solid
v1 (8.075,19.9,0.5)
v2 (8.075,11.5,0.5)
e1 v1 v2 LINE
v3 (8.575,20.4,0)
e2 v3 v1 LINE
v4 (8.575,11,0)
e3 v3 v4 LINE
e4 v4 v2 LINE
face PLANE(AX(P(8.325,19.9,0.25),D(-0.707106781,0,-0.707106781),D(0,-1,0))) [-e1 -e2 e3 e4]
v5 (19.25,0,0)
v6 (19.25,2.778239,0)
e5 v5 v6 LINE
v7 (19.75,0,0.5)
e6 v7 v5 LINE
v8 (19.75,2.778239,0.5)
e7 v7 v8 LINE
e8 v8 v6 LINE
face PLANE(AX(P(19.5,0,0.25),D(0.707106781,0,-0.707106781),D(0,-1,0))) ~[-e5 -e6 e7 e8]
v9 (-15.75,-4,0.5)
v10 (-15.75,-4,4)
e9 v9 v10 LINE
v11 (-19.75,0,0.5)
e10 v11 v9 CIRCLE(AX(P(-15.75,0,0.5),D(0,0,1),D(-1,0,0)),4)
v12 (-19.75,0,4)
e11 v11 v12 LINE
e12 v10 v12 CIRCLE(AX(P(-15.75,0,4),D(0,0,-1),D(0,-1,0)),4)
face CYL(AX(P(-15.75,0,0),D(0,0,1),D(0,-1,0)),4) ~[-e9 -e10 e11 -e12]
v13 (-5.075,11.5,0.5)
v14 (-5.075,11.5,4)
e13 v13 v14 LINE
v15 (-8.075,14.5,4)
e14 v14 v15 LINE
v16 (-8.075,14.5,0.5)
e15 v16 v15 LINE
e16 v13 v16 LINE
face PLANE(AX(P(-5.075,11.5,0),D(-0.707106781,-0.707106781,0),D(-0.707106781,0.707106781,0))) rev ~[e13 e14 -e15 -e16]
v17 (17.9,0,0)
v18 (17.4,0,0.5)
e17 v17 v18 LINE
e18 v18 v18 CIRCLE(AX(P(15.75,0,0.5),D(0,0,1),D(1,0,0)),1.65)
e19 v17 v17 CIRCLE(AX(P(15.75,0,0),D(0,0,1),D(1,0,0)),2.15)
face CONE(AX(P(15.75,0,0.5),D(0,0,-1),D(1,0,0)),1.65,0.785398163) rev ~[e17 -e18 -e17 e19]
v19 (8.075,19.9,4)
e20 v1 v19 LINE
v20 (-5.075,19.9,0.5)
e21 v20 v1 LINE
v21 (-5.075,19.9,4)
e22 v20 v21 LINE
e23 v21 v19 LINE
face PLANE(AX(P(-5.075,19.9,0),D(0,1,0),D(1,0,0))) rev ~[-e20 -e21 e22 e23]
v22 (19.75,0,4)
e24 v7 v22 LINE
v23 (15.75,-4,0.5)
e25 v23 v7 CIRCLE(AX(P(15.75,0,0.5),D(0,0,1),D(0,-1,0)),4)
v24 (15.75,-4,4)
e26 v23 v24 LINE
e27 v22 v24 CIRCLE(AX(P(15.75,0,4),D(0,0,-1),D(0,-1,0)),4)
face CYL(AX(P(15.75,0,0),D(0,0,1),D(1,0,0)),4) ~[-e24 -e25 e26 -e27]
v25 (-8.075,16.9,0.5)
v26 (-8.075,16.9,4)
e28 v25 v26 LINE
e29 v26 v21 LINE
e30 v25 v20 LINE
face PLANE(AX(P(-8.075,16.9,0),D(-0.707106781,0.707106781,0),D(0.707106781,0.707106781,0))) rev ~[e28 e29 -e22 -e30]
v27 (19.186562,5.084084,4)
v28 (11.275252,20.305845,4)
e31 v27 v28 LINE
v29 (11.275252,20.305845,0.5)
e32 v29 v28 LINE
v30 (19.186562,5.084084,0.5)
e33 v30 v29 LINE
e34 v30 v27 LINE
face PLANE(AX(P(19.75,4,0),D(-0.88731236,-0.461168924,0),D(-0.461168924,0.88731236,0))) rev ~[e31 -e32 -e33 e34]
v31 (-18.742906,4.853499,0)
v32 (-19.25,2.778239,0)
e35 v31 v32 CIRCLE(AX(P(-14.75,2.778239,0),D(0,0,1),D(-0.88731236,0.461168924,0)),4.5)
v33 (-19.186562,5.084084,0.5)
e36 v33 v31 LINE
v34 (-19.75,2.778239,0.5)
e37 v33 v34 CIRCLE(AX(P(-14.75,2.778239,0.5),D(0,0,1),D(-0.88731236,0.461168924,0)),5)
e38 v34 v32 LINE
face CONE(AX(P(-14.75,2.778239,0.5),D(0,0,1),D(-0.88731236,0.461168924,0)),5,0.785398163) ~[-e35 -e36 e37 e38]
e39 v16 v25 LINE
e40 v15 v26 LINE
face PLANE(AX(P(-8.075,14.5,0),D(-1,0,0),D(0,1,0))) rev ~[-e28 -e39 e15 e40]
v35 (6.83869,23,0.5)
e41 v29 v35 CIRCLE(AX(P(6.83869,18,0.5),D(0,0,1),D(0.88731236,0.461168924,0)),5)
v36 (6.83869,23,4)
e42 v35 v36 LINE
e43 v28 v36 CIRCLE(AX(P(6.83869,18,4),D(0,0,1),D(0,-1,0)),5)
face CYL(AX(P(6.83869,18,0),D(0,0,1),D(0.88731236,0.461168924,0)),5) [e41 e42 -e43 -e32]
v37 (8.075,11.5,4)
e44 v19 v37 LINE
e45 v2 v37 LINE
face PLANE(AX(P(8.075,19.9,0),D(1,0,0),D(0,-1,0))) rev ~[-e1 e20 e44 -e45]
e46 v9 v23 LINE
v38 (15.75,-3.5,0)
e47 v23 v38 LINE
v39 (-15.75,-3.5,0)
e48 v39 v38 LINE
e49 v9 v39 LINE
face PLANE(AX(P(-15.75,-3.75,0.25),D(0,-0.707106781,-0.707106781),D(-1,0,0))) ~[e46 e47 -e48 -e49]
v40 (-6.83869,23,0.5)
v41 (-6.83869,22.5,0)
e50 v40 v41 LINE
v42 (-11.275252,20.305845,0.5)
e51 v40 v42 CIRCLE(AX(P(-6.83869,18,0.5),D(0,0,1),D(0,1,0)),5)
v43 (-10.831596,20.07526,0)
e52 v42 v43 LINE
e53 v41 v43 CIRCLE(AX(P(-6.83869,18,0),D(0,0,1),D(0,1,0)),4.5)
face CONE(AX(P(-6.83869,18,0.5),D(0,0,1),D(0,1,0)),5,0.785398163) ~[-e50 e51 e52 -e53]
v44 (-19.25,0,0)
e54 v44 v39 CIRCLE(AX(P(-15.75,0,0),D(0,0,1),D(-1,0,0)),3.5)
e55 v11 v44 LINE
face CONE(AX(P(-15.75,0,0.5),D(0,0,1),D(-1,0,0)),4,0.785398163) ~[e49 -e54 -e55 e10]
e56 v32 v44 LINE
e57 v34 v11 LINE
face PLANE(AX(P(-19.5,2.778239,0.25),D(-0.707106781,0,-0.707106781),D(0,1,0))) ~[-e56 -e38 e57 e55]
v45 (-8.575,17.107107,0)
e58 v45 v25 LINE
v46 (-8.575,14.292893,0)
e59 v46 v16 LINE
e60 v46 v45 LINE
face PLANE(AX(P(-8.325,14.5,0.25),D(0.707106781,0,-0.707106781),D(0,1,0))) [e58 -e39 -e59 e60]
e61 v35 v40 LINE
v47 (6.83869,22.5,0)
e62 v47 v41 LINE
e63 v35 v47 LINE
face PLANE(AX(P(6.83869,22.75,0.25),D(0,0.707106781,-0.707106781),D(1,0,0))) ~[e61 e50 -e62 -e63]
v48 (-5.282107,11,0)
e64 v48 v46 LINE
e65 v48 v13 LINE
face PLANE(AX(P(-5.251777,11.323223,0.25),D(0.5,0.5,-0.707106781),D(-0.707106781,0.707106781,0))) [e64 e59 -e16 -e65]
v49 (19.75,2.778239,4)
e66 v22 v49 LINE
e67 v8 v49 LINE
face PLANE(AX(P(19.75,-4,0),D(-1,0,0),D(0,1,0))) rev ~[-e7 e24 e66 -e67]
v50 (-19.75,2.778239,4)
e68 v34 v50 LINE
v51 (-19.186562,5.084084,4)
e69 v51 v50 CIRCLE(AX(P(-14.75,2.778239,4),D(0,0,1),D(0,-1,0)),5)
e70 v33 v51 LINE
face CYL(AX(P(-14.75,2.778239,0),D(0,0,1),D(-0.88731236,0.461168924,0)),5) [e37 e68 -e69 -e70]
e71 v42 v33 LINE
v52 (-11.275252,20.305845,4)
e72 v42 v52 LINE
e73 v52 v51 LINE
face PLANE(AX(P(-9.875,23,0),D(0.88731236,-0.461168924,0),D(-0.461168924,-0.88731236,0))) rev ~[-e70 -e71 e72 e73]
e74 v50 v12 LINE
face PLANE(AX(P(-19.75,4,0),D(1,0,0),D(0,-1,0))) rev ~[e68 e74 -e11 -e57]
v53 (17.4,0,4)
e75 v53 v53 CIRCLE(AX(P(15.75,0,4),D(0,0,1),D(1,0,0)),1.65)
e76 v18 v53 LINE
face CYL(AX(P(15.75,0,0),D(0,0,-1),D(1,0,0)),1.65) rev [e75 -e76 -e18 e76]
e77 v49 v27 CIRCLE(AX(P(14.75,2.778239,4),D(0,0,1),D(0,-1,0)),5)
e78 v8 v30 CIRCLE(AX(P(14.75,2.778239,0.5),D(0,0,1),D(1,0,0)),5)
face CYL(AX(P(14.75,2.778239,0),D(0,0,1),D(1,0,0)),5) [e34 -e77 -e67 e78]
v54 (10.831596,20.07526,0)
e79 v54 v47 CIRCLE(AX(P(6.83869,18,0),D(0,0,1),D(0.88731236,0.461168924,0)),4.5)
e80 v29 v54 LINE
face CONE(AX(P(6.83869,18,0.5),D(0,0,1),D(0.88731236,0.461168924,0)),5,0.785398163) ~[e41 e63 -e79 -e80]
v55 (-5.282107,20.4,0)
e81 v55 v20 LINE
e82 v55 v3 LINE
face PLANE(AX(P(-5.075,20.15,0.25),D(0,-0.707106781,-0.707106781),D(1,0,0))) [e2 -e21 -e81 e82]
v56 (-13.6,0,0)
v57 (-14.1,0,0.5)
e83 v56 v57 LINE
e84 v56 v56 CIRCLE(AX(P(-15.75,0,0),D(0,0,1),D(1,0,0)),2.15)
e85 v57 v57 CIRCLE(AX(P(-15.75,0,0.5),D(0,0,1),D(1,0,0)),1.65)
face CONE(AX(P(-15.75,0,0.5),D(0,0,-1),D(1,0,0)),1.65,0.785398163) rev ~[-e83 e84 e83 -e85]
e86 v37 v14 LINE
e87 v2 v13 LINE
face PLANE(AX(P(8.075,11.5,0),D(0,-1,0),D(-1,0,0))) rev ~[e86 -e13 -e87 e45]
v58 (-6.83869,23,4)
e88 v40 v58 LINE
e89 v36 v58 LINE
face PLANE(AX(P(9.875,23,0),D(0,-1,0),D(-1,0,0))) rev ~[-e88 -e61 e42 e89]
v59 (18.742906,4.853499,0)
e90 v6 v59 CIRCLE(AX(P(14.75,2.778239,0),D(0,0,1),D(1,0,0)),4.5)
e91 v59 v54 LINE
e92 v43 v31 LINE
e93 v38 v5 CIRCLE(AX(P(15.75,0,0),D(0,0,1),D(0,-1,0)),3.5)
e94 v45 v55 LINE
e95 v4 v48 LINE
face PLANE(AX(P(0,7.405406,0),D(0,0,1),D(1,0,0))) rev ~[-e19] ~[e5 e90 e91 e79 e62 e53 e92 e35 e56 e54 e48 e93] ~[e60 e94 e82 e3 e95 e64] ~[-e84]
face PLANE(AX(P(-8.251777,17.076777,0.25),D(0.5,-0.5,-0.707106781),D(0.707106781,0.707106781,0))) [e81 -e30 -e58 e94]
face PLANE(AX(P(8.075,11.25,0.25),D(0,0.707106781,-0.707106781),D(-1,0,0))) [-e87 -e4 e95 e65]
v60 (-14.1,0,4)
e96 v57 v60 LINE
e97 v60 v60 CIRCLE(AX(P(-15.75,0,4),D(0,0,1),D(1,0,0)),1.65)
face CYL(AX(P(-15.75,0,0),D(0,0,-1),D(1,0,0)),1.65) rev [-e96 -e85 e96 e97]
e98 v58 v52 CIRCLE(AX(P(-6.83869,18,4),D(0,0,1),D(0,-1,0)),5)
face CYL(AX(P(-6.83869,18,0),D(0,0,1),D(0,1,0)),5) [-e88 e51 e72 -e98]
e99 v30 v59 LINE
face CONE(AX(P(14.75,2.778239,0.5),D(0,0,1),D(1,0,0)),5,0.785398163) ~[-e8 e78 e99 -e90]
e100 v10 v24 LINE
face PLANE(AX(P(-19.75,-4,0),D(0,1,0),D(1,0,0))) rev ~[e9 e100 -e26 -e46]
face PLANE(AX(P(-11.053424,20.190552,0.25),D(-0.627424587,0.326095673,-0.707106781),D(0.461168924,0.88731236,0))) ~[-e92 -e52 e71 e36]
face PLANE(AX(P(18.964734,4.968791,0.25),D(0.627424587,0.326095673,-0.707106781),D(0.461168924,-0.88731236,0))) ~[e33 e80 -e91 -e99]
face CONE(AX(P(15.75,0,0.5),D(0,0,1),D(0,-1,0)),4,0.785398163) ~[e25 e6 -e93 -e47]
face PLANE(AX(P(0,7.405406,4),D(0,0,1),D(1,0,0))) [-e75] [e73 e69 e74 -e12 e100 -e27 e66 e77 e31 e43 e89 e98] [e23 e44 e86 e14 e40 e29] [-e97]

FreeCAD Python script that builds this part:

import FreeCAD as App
import Part
import Sketcher
from FreeCAD import Vector


def edges_at(feature, points):
    """Names of the edges that pass closest to the given points."""
    edges = feature.Shape.Edges
    near = lambda p: min(range(len(edges)), key=lambda i: edges[i].distToShape(Part.Vertex(*p))[0])
    return sorted({f"Edge{near(p) + 1}" for p in points})


def add_polygon(sketch, points):
    """Adds a closed chain of lines whose ends are joined by coincident constraints."""
    first, n = sketch.GeometryCount, len(points)
    for a, b in zip(points, points[1:] + points[:1]):
        sketch.addGeometry(Part.LineSegment(App.Vector(*a, 0), App.Vector(*b, 0)), False)
    for i in range(n):
        sketch.addConstraint(Sketcher.Constraint("Coincident", first + i, 2, first + (i + 1) % n, 1))

doc = App.newDocument("Part")
body = doc.addObject("PartDesign::Body", "Body")

# Sketch on XY plane
sketch1 = body.newObject("Sketcher::SketchObject", "Sketch")
sketch1.AttachmentSupport = (doc.getObject("XY_Plane"), [""])
sketch1.MapMode = "FlatFace"
add_polygon(sketch1, [(-19.75, -4), (19.75, -4), (19.75, 4), (9.875, 23), (-9.875, 23), (-19.75, 4)])  # lines 0-5
sketch1.addGeometry(Part.Circle(Vector(-15.75, 0, 0), Vector(0, 0, 1), 1.65), False)  # 6
sketch1.addGeometry(Part.Circle(Vector(15.75, 0, 0), Vector(0, 0, 1), 1.65), False)  # 7
add_polygon(sketch1, [(-5.075, 11.5), (-8.075, 14.5), (-8.075, 16.9), (-5.075, 19.9), (8.075, 19.9), (8.075, 11.5)])  # lines 8-13
sketch1.addConstraint(Sketcher.Constraint("Horizontal", 0))
sketch1.addConstraint(Sketcher.Constraint("Vertical", 1))
sketch1.addConstraint(Sketcher.Constraint("Horizontal", 3))
sketch1.addConstraint(Sketcher.Constraint("Vertical", 5))
sketch1.addConstraint(Sketcher.Constraint("Vertical", 9))
sketch1.addConstraint(Sketcher.Constraint("Horizontal", 11))
sketch1.addConstraint(Sketcher.Constraint("Vertical", 12))
sketch1.addConstraint(Sketcher.Constraint("Horizontal", 13))
sketch1.addConstraint(Sketcher.Constraint("Equal", 6, 7))
sketch1.addConstraint(Sketcher.Constraint("Symmetric", 6, 3, 7, 3, -1, 1))
sketch1.addConstraint(Sketcher.Constraint("Symmetric", 0, 2, 4, 2, -1, 1))
sketch1.addConstraint(Sketcher.Constraint("PointOnObject", 6, 3, -1))
sketch1.addConstraint(Sketcher.Constraint("Perpendicular", 8, 10))
sketch1.addConstraint(Sketcher.Constraint("Horizontal", 1, 2, 4, 2))
sketch1.addConstraint(Sketcher.Constraint("Vertical", 10, 2, 13, 2))
sketch1.addConstraint(Sketcher.Constraint("Equal", 2, 4))
sketch1.addConstraint(Sketcher.Constraint("Equal", 8, 10))
sketch1.addConstraint(Sketcher.Constraint("Diameter", 6, 3.3))
sketch1.addConstraint(Sketcher.Constraint("DistanceY", 1, 1, 1, 2, 8.0))
sketch1.addConstraint(Sketcher.Constraint("DistanceX", 0, 1, 0, 2, 39.5))
sketch1.addConstraint(Sketcher.Constraint("DistanceY", 9, 1, 9, 2, 2.4))
sketch1.addConstraint(Sketcher.Constraint("DistanceY", 12, 2, 12, 1, 8.4))
sketch1.addConstraint(Sketcher.Constraint("DistanceY", -1, 1, 2, 2, 23.0))
sketch1.addConstraint(Sketcher.Constraint("DistanceX", 7, 3, 0, 2, 4.0))
sketch1.addConstraint(Sketcher.Constraint("DistanceX", 3, 2, 3, 1, 19.75))
sketch1.addConstraint(Sketcher.Constraint("DistanceX", 11, 1, 11, 2, 13.15))
sketch1.addConstraint(Sketcher.Constraint("DistanceY", -1, 1, 8, 2, 14.5))
sketch1.addConstraint(Sketcher.Constraint("DistanceX", 3, 2, 8, 2, 1.8))
pad1 = body.newObject("PartDesign::Pad", "Pad")
pad1.Profile = sketch1
pad1.Length = 4
doc.recompute()

fillet = body.newObject("PartDesign::Fillet", "Fillet")
fillet.Base = (pad1, edges_at(pad1, [
    (-19.75, 4, 2),
    (-9.875, 23, 2),
    (9.875, 23, 2),
    (19.75, 4, 2),
]))
fillet.Radius = 5
doc.recompute()

fillet2 = body.newObject("PartDesign::Fillet", "Fillet001")
fillet2.Base = (fillet, edges_at(fillet, [(19.75, -4, 2), (-19.75, -4, 2)]))
fillet2.Radius = 4
doc.recompute()

chamfer = body.newObject("PartDesign::Chamfer", "Chamfer")
chamfer.Base = (fillet2, edges_at(fillet2, [
    (19.75, 1.389, 0),
    (18.578, -2.828, 0),
    (19.607, 3.965, 0),
    (0, -4, 0),
    (15.231, 12.695, 0),
    (-18.578, -2.828, 0),
    (9.434, 22.274, 0),
    (-19.75, 1.389, 0),
    (0, 23, 0),
    (-19.607, 3.965, 0),
    (-9.434, 22.274, 0),
    (-15.231, 12.695, 0),
    (-17.4, 0, 0),
    (14.1, 0, 0),
    (-8.075, 15.7, 0),
    (-6.575, 18.4, 0),
    (1.5, 19.9, 0),
    (8.075, 15.7, 0),
    (1.5, 11.5, 0),
    (-6.575, 13, 0),
]))
chamfer.Size = 0.5

doc.recompute()
